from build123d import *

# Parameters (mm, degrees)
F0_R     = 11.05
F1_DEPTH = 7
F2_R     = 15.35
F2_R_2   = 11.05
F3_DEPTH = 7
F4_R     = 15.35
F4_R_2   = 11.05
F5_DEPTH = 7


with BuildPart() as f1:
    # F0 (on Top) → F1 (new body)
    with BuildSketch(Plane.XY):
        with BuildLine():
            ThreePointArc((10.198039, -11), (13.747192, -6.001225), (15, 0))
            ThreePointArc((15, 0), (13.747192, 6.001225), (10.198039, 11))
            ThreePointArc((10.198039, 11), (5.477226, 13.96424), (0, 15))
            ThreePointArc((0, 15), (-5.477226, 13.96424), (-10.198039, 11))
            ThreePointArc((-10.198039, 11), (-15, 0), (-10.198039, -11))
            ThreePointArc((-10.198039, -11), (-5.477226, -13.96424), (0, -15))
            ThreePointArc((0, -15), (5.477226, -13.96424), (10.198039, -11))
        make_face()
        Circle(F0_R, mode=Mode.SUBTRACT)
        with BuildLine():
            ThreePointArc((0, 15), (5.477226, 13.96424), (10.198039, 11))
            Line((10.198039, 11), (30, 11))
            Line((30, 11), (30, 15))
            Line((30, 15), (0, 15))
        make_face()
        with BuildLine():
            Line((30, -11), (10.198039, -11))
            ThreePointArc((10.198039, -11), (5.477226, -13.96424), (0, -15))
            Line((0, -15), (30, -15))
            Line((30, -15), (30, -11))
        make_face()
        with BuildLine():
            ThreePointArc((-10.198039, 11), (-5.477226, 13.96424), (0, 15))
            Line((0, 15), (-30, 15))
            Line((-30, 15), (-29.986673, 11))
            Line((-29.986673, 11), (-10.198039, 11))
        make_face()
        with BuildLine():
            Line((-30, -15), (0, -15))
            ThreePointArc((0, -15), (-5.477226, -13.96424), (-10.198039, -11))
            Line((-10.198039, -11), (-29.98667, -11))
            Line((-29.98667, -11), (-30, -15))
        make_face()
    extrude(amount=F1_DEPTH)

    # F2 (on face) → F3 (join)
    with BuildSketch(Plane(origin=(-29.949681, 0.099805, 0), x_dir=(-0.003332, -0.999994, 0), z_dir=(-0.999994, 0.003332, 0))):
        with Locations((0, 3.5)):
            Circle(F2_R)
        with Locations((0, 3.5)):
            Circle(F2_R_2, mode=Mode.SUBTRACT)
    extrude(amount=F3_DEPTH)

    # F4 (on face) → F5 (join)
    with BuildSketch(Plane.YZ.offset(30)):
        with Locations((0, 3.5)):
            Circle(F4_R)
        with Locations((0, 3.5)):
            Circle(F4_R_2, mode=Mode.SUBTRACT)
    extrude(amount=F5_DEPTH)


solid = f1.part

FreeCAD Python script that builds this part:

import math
import FreeCAD as App
import Part
import Sketcher
from FreeCAD import Vector
Q = App.Units.Quantity

doc = App.newDocument("Part")
params = doc.addObject("Spreadsheet::Sheet", "Params")
for row, (alias, value) in enumerate([
    ("sketch1_radius", "15 mm"),
    ("sketch1_diameter", "22.1 mm"),
    ("sketch1_width", "60 mm"),
    ("sketch1_height", "4 mm"),
    ("pad1_length", "7 mm"),
    ("sketch2_diameter", "30.7 mm"),
    ("sketch2_diameter2", "22.1 mm"),
    ("pad2_length", "7 mm"),
    ("sketch3_diameter", "30.7 mm"),
    ("sketch3_diameter2", "22.1 mm"),
    ("pad3_length", "7 mm"),
], start=1):
    params.set(f"A{row}", alias)
    params.set(f"B{row}", "=" + value)
    params.setAlias(f"B{row}", alias)

body = doc.addObject("PartDesign::Body", "Body")

# Sketch on XY plane
sketch1 = body.newObject("Sketcher::SketchObject", "Sketch")
sketch1.AttachmentSupport = (doc.getObject("XY_Plane"), [""])
sketch1.MapMode = "FlatFace"
sketch1.addGeometry(Part.ArcOfCircle(Part.Circle(Vector(-0.000004, 0.000002, 0), Vector(0, 0, 1), 15.000004), math.radians(-47.166566), math.radians(-0.000006)), False)
sketch1.addGeometry(Part.ArcOfCircle(Part.Circle(Vector(-0.000004, -0.000002, 0), Vector(0, 0, 1), 15.000004), math.radians(0.000006), math.radians(47.166566)), False)
sketch1.addGeometry(Part.LineSegment(Vector(10.198039, 11, 0), Vector(30, 11, 0)), False)
sketch1.addGeometry(Part.LineSegment(Vector(30, 11, 0), Vector(30, 15, 0)), False)
sketch1.addGeometry(Part.LineSegment(Vector(30, 15, 0), Vector(-30, 15, 0)), False)
sketch1.addGeometry(Part.LineSegment(Vector(-30, 15, 0), Vector(-29.986673, 11, 0)), False)
sketch1.addGeometry(Part.LineSegment(Vector(-29.986673, 11, 0), Vector(-10.198039, 11, 0)), False)
sketch1.addGeometry(Part.ArcOfCircle(Part.Circle(Vector(0, 0, 0), Vector(0, 0, 1), 15), math.radians(132.833428), math.radians(227.166572)), False)
sketch1.addGeometry(Part.LineSegment(Vector(-10.198039, -11, 0), Vector(-29.98667, -11, 0)), False)
sketch1.addGeometry(Part.LineSegment(Vector(-29.98667, -11, 0), Vector(-30, -15, 0)), False)
sketch1.addGeometry(Part.LineSegment(Vector(-30, -15, 0), Vector(30, -15, 0)), False)
sketch1.addGeometry(Part.LineSegment(Vector(30, -15, 0), Vector(30, -11, 0)), False)
sketch1.addGeometry(Part.LineSegment(Vector(30, -11, 0), Vector(10.198039, -11, 0)), False)
sketch1.addGeometry(Part.Circle(Vector(0, 0, 0), Vector(0, 0, 1), 11.05), False)
sketch1.addConstraint(Sketcher.Constraint("Tangent", 0, 2, 1, 1))
sketch1.addConstraint(Sketcher.Constraint("Coincident", 1, 2, 2, 1))
sketch1.addConstraint(Sketcher.Constraint("Coincident", 2, 2, 3, 1))
sketch1.addConstraint(Sketcher.Constraint("Coincident", 3, 2, 4, 1))
sketch1.addConstraint(Sketcher.Constraint("Coincident", 4, 2, 5, 1))
sketch1.addConstraint(Sketcher.Constraint("Coincident", 5, 2, 6, 1))
sketch1.addConstraint(Sketcher.Constraint("Coincident", 6, 2, 7, 1))
sketch1.addConstraint(Sketcher.Constraint("Coincident", 7, 2, 8, 1))
sketch1.addConstraint(Sketcher.Constraint("Coincident", 8, 2, 9, 1))
sketch1.addConstraint(Sketcher.Constraint("Coincident", 9, 2, 10, 1))
sketch1.addConstraint(Sketcher.Constraint("Coincident", 10, 2, 11, 1))
sketch1.addConstraint(Sketcher.Constraint("Coincident", 11, 2, 12, 1))
sketch1.addConstraint(Sketcher.Constraint("Coincident", 12, 2, 0, 1))
sketch1.addConstraint(Sketcher.Constraint("Horizontal", 2))
sketch1.addConstraint(Sketcher.Constraint("Vertical", 3))
sketch1.addConstraint(Sketcher.Constraint("Horizontal", 4))
sketch1.addConstraint(Sketcher.Constraint("Horizontal", 6))
sketch1.addConstraint(Sketcher.Constraint("Horizontal", 8))
sketch1.addConstraint(Sketcher.Constraint("Horizontal", 10))
sketch1.addConstraint(Sketcher.Constraint("Vertical", 11))
sketch1.addConstraint(Sketcher.Constraint("Horizontal", 12))
sketch1.addConstraint(Sketcher.Constraint("Coincident", 0, 3, -1, 1))
sketch1.addConstraint(Sketcher.Constraint("Coincident", 7, 3, -1, 1))
sketch1.addConstraint(Sketcher.Constraint("Coincident", 13, 3, -1, 1))
sketch1.addConstraint(Sketcher.Constraint("Equal", 0, 1))
sketch1.addConstraint(Sketcher.Constraint("Symmetric", 1, 2, 7, 2, -1, 1))
sketch1.addConstraint(Sketcher.Constraint("Symmetric", 3, 2, 9, 2, -1, 1))
sketch1.addConstraint(Sketcher.Constraint("Symmetric", 5, 2, 8, 2, -1))
sketch1.addConstraint(Sketcher.Constraint("Symmetric", 2, 2, 11, 2, -1))
sketch1.addConstraint(Sketcher.Constraint("PointOnObject", 0, 2, -1))
sketch1.addConstraint(Sketcher.Constraint("Vertical", 4, 2, 9, 2))
sketch1.addConstraint(Sketcher.Constraint("Radius", 7, Q("15 mm")))
sketch1.addConstraint(Sketcher.Constraint("Diameter", 13, Q("22.1 mm")))
sketch1.addConstraint(Sketcher.Constraint("DistanceX", 4, 2, 4, 1, Q("60 mm")))
sketch1.addConstraint(Sketcher.Constraint("DistanceY", 3, 1, 3, 2, Q("4 mm")))
sketch1.addConstraint(Sketcher.Constraint("DistanceY", -1, 1, 1, 2, Q("11 mm")))
sketch1.addConstraint(Sketcher.Constraint("DistanceX", 8, 2, 8, 1, Q("19.788631 mm")))
sketch1.setExpression("Constraints[31]", "Params.sketch1_radius")
sketch1.setExpression("Constraints[32]", "Params.sketch1_diameter")
sketch1.setExpression("Constraints[33]", "Params.sketch1_width")
sketch1.setExpression("Constraints[34]", "Params.sketch1_height")
pad1 = body.newObject("PartDesign::Pad", "Pad")
pad1.Profile = sketch1
pad1.setExpression("Length", "Params.pad1_length")

# Sketch on an angled plane
sketch2 = body.newObject("Sketcher::SketchObject", "Sketch001")
sketch2.Placement = App.Placement(Vector(-29.949681, 0.099805, 0), App.Rotation(Vector(-0.003332001, -0.999994449, 0), Vector(0, 0, 1), Vector(-0.999994449, 0.003332001, 0), "ZXY"))
sketch2.addGeometry(Part.Circle(Vector(0, 3.5, 0), Vector(0, 0, 1), 15.35), False)
sketch2.addGeometry(Part.Circle(Vector(0, 3.5, 0), Vector(0, 0, 1), 11.05), False)
sketch2.addConstraint(Sketcher.Constraint("Coincident", 1, 3, 0, 3))
sketch2.addConstraint(Sketcher.Constraint("PointOnObject", 0, 3, -2))
sketch2.addConstraint(Sketcher.Constraint("Diameter", 0, Q("30.7 mm")))
sketch2.addConstraint(Sketcher.Constraint("Diameter", 1, Q("22.1 mm")))
sketch2.addConstraint(Sketcher.Constraint("DistanceY", -1, 1, 0, 3, Q("3.5 mm")))
sketch2.setExpression("Constraints[2]", "Params.sketch2_diameter")
sketch2.setExpression("Constraints[3]", "Params.sketch2_diameter2")
pad2 = body.newObject("PartDesign::Pad", "Pad001")
pad2.Profile = sketch2
pad2.setExpression("Length", "Params.pad2_length")

# Sketch on YZ plane
sketch3 = body.newObject("Sketcher::SketchObject", "Sketch002")
sketch3.AttachmentSupport = (doc.getObject("YZ_Plane"), [""])
sketch3.MapMode = "FlatFace"
sketch3.AttachmentOffset = App.Placement(Vector(0, 0, 30), App.Rotation())
sketch3.addGeometry(Part.Circle(Vector(0, 3.5, 0), Vector(0, 0, 1), 15.35), False)
sketch3.addGeometry(Part.Circle(Vector(0, 3.5, 0), Vector(0, 0, 1), 11.05), False)
sketch3.addConstraint(Sketcher.Constraint("Coincident", 1, 3, 0, 3))
sketch3.addConstraint(Sketcher.Constraint("PointOnObject", 0, 3, -2))
sketch3.addConstraint(Sketcher.Constraint("Diameter", 0, Q("30.7 mm")))
sketch3.addConstraint(Sketcher.Constraint("Diameter", 1, Q("22.1 mm")))
sketch3.addConstraint(Sketcher.Constraint("DistanceY", -1, 1, 0, 3, Q("3.5 mm")))
sketch3.setExpression("Constraints[2]", "Params.sketch3_diameter")
sketch3.setExpression("Constraints[3]", "Params.sketch3_diameter2")
pad3 = body.newObject("PartDesign::Pad", "Pad002")
pad3.Profile = sketch3
pad3.setExpression("Length", "Params.pad3_length")

doc.recompute()
